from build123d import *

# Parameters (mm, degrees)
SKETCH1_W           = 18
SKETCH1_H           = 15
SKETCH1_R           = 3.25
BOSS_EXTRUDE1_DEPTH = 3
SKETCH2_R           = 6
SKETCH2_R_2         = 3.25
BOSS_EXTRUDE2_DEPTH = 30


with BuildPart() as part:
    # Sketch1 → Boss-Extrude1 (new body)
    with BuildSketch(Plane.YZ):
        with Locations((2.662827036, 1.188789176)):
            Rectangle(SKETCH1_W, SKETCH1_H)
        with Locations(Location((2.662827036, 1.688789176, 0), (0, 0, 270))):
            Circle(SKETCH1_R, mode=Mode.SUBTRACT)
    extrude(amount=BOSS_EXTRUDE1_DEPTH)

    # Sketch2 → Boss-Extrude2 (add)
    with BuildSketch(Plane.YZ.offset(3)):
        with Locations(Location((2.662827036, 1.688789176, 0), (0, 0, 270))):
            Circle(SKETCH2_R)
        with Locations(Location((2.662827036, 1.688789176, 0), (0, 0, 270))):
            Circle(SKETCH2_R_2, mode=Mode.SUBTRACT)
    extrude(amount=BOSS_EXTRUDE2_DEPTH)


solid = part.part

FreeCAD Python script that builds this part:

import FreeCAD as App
import Part
import Sketcher

V = App.Vector
Q = App.Units.Quantity


def add_polygon(sketch, points):
    """Adds a closed chain of lines whose ends are joined by coincident constraints."""
    first, n = sketch.GeometryCount, len(points)
    for a, b in zip(points, points[1:] + points[:1]):
        sketch.addGeometry(Part.LineSegment(App.Vector(*a, 0), App.Vector(*b, 0)), False)
    for i in range(n):
        sketch.addConstraint(Sketcher.Constraint("Coincident", first + i, 2, first + (i + 1) % n, 1))

doc = App.newDocument("Part")
body = doc.addObject("PartDesign::Body", "Body")

sketch1 = body.newObject("Sketcher::SketchObject", "Sketch")
sketch1.AttachmentSupport = (doc.getObject("YZ_Plane"), [""])
sketch1.MapMode = "FlatFace"
add_polygon(sketch1, [(-6.3, 8.7), (-6.3, -6.3), (11.7, -6.3), (11.7, 8.7)])
sketch1.addGeometry(Part.Circle(V(2.7, 1.7, 0), V(0, 0, 1), 3.2), False)
sketch1.addConstraint([
    Sketcher.Constraint("Vertical", 0),
    Sketcher.Constraint("Horizontal", 1),
    Sketcher.Constraint("Vertical", 2),
    Sketcher.Constraint("Horizontal", 3),
    Sketcher.Constraint("Diameter", 4, Q("6.5 mm")),
    Sketcher.Constraint("DistanceX", 1, 1, 1, 2, Q("18 mm")),
    Sketcher.Constraint("DistanceY", 0, 2, 0, 1, Q("15 mm")),
    Sketcher.Constraint("DistanceX", 0, 2, 4, 3, Q("9 mm")),
    Sketcher.Constraint("DistanceY", 0, 2, 4, 3, Q("8 mm")),
    Sketcher.Constraint("DistanceY", -1, 1, 4, 3, Q("1.688789 mm")),
    Sketcher.Constraint("DistanceX", -1, 1, 4, 3, Q("2.662827 mm")),
])
pad1 = body.newObject("PartDesign::Pad", "Pad")
pad1.Profile = sketch1
pad1.Length = 3

sketch2 = body.newObject("Sketcher::SketchObject", "Sketch001")
sketch2.AttachmentSupport = (doc.getObject("YZ_Plane"), [""])
sketch2.MapMode = "FlatFace"
sketch2.AttachmentOffset = App.Placement(V(0, 0, 3), App.Rotation())
sketch2.addGeometry([
    Part.Circle(V(2.7, 1.7, 0), V(0, 0, 1), 6),
    Part.Circle(V(2.7, 1.7, 0), V(0, 0, 1), 3.2),
], False)
sketch2.addConstraint([
    Sketcher.Constraint("Coincident", 1, 3, 0, 3),
    Sketcher.Constraint("Diameter", 0, Q("12 mm")),
    Sketcher.Constraint("Diameter", 1, Q("6.5 mm")),
    Sketcher.Constraint("DistanceY", -1, 1, 0, 3, Q("1.688789 mm")),
    Sketcher.Constraint("DistanceX", -1, 1, 0, 3, Q("2.662827 mm")),
])
pad2 = body.newObject("PartDesign::Pad", "Pad001")
pad2.Profile = sketch2
pad2.Length = 30

doc.recompute()
